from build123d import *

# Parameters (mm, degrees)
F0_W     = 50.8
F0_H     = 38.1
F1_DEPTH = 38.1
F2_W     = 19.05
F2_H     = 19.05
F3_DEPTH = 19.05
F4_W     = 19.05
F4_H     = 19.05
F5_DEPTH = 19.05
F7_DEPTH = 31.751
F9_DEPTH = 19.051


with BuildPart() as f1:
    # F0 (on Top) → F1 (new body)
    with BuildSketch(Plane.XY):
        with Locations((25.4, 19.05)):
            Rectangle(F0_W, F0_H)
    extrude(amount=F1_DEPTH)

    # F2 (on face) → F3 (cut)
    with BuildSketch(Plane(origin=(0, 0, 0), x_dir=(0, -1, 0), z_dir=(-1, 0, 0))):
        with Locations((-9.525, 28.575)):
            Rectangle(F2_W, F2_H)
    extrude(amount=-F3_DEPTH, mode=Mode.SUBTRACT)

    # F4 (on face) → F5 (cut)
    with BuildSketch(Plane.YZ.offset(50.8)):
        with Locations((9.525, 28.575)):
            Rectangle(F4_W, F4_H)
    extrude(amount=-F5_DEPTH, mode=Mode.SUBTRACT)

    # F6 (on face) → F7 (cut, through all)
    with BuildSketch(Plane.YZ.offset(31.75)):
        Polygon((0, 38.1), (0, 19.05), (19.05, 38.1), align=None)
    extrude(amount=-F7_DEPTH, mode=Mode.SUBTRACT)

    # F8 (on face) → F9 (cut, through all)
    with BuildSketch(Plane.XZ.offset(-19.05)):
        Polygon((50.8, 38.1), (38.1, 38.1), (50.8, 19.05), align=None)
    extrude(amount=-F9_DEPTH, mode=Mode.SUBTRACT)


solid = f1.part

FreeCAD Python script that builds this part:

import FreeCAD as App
import Part
import Sketcher
from FreeCAD import Vector
Q = App.Units.Quantity


def add_polygon(sketch, points):
    """Adds a closed chain of lines whose ends are joined by coincident constraints."""
    first, n = sketch.GeometryCount, len(points)
    for a, b in zip(points, points[1:] + points[:1]):
        sketch.addGeometry(Part.LineSegment(App.Vector(*a, 0), App.Vector(*b, 0)), False)
    for i in range(n):
        sketch.addConstraint(Sketcher.Constraint("Coincident", first + i, 2, first + (i + 1) % n, 1))

doc = App.newDocument("Part")
body = doc.addObject("PartDesign::Body", "Body")

# Sketch on XY plane
sketch1 = body.newObject("Sketcher::SketchObject", "Sketch")
sketch1.AttachmentSupport = (doc.getObject("XY_Plane"), [""])
sketch1.MapMode = "FlatFace"
add_polygon(sketch1, [(0, 38), (0, 0), (51, 0), (51, 38)])  # lines 0-3
sketch1.addConstraint([
    Sketcher.Constraint("Vertical", 0),
    Sketcher.Constraint("Horizontal", 1),
    Sketcher.Constraint("Vertical", 2),
    Sketcher.Constraint("Horizontal", 3),
    Sketcher.Constraint("Coincident", 0, 2, -1, 1),
    Sketcher.Constraint("DistanceX", 1, 1, 1, 2, Q("2 in")),
    Sketcher.Constraint("DistanceY", 0, 2, 0, 1, Q("1.5 in")),
])
pad1 = body.newObject("PartDesign::Pad", "Pad")
pad1.Profile = sketch1
pad1.Length = Q("1.5 in")

# Sketch on YZ plane
sketch2 = body.newObject("Sketcher::SketchObject", "Sketch001")
sketch2.AttachmentSupport = (doc.getObject("YZ_Plane"), [""])
sketch2.MapMode = "FlatFace"
add_polygon(sketch2, [(19, 38), (19, 19), (0, 19), (0, 38)])  # lines 0-3
sketch2.addConstraint([
    Sketcher.Constraint("Vertical", 0),
    Sketcher.Constraint("Horizontal", 1),
    Sketcher.Constraint("Vertical", 2),
    Sketcher.Constraint("Horizontal", 3),
    Sketcher.Constraint("PointOnObject", 1, 2, -2),
    Sketcher.Constraint("Equal", 3, 0),
    Sketcher.Constraint("DistanceX", 1, 2, 1, 1, Q("0.75 in")),
    Sketcher.Constraint("DistanceY", -1, 1, 2, 2, Q("1.5 in")),
])
pocket1 = body.newObject("PartDesign::Pocket", "Pocket")
pocket1.Profile = sketch2
pocket1.Length = Q("0.75 in")
pocket1.Reversed = True

# Sketch on YZ plane
sketch3 = body.newObject("Sketcher::SketchObject", "Sketch002")
sketch3.AttachmentSupport = (doc.getObject("YZ_Plane"), [""])
sketch3.MapMode = "FlatFace"
sketch3.AttachmentOffset = App.Placement(Vector(0, 0, 2 * 25.4), App.Rotation())
add_polygon(sketch3, [(0, 38), (0, 19), (19, 19), (19, 38)])  # lines 0-3
sketch3.addConstraint([
    Sketcher.Constraint("Vertical", 0),
    Sketcher.Constraint("Horizontal", 1),
    Sketcher.Constraint("Vertical", 2),
    Sketcher.Constraint("Horizontal", 3),
    Sketcher.Constraint("PointOnObject", 0, 2, -2),
    Sketcher.Constraint("Equal", 3, 0),
    Sketcher.Constraint("DistanceX", 1, 1, 1, 2, Q("0.75 in")),
    Sketcher.Constraint("DistanceY", -1, 1, 2, 2, Q("1.5 in")),
])
pocket2 = body.newObject("PartDesign::Pocket", "Pocket001")
pocket2.Profile = sketch3
pocket2.Length = Q("0.75 in")

# Sketch on YZ plane
sketch4 = body.newObject("Sketcher::SketchObject", "Sketch003")
sketch4.AttachmentSupport = (doc.getObject("YZ_Plane"), [""])
sketch4.MapMode = "FlatFace"
sketch4.AttachmentOffset = App.Placement(Vector(0, 0, 1.25 * 25.4), App.Rotation())
add_polygon(sketch4, [(0, 38), (0, 19), (19, 38)])  # lines 0-2
sketch4.addConstraint([
    Sketcher.Constraint("Vertical", 0),
    Sketcher.Constraint("Horizontal", 2),
    Sketcher.Constraint("PointOnObject", 0, 2, -2),
    Sketcher.Constraint("Equal", 2, 0),
    Sketcher.Constraint("DistanceX", 2, 2, 2, 1, Q("0.75 in")),
    Sketcher.Constraint("DistanceY", -1, 1, 1, 2, Q("1.5 in")),
])
pocket3 = body.newObject("PartDesign::Pocket", "Pocket002")
pocket3.Profile = sketch4
pocket3.Type = "ThroughAll"

# Sketch on XZ plane
sketch5 = body.newObject("Sketcher::SketchObject", "Sketch004")
sketch5.AttachmentSupport = (doc.getObject("XZ_Plane"), [""])
sketch5.MapMode = "FlatFace"
sketch5.AttachmentOffset = App.Placement(Vector(0, 0, -0.75 * 25.4), App.Rotation())
add_polygon(sketch5, [(51, 38), (38, 38), (51, 19)])  # lines 0-2
sketch5.addConstraint([
    Sketcher.Constraint("Horizontal", 0),
    Sketcher.Constraint("Vertical", 2),
    Sketcher.Constraint("DistanceX", 0, 2, 0, 1, Q("0.5 in")),
    Sketcher.Constraint("DistanceX", -1, 1, 1, 2, Q("2 in")),
    Sketcher.Constraint("DistanceY", 2, 1, 2, 2, Q("0.75 in")),
    Sketcher.Constraint("DistanceY", -1, 1, 0, 2, Q("1.5 in")),
])
pocket4 = body.newObject("PartDesign::Pocket", "Pocket003")
pocket4.Profile = sketch5
pocket4.Type = "ThroughAll"

doc.recompute()
